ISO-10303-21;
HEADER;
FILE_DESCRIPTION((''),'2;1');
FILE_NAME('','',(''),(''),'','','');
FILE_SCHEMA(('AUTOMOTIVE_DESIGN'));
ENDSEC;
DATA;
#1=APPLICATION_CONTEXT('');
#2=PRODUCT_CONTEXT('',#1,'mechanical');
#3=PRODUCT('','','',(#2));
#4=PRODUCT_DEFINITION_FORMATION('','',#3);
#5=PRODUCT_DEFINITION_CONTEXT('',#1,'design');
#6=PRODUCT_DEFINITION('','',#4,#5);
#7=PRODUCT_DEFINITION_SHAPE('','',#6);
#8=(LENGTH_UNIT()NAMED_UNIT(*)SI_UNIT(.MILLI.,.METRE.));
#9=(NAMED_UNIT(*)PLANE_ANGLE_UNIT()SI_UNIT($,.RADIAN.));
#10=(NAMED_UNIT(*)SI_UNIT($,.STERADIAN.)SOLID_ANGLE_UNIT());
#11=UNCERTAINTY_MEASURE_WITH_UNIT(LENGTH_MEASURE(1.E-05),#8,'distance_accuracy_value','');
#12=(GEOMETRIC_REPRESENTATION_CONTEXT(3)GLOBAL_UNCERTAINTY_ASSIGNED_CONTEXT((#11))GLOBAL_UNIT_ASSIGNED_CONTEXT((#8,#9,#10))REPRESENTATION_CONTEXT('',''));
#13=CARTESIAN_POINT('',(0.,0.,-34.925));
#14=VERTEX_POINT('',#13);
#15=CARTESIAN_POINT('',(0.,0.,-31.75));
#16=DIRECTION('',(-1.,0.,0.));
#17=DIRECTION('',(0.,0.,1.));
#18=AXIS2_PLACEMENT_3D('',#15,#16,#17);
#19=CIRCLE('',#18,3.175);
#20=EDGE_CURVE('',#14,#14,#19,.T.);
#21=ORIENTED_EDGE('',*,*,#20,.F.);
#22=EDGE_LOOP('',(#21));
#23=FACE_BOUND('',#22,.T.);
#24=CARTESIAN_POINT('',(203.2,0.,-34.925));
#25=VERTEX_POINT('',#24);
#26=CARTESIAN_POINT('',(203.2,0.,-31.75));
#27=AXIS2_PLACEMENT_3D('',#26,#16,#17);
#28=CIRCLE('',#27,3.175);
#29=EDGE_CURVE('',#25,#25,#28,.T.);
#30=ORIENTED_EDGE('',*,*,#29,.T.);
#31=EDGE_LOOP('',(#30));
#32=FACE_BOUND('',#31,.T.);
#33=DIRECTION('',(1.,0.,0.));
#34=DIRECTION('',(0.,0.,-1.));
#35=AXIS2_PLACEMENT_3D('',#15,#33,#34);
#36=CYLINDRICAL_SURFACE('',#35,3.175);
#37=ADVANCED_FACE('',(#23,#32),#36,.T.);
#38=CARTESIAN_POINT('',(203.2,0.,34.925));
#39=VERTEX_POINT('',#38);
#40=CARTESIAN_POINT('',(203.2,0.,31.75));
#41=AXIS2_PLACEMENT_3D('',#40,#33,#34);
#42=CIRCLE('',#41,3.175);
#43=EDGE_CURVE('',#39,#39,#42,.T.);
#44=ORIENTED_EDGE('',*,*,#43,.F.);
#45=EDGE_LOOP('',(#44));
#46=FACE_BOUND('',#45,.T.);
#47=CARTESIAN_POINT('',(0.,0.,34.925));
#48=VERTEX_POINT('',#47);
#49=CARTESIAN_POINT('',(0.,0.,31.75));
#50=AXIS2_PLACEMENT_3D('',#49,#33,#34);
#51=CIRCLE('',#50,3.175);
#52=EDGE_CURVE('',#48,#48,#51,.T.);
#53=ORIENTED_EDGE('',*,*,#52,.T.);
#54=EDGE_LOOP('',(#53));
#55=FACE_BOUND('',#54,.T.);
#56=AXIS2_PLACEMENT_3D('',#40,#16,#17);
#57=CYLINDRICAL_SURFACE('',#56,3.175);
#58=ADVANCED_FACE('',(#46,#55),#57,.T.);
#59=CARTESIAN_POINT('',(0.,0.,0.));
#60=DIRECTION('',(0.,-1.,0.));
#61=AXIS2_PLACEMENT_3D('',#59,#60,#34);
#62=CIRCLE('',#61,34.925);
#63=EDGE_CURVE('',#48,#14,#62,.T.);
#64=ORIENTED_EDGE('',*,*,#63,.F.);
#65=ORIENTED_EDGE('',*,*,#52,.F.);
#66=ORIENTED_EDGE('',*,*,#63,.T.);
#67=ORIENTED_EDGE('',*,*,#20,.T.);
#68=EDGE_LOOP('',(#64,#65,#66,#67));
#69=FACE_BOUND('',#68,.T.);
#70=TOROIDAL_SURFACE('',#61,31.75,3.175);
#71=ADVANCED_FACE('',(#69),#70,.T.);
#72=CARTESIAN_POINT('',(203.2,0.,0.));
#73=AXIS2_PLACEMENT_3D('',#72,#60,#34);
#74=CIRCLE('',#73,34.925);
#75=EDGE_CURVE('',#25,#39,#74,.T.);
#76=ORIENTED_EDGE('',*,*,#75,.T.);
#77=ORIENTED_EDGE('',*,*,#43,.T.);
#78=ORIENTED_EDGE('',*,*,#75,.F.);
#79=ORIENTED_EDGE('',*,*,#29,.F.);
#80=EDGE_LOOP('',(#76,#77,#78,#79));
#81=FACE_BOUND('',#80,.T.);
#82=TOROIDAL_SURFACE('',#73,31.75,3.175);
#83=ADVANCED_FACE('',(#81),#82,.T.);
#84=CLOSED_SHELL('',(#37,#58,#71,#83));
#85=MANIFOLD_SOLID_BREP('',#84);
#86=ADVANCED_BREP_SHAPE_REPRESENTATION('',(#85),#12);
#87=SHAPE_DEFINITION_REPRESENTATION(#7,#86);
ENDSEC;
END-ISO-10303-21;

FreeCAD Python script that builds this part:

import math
import FreeCAD as App
import Part
import Sketcher
from FreeCAD import Vector
Q = App.Units.Quantity

doc = App.newDocument("Part")
body = doc.addObject("PartDesign::Body", "Body")

# Sketch on YZ plane
sketch1 = body.newObject("Sketcher::SketchObject", "Sketch")
sketch1.AttachmentSupport = (doc.getObject("YZ_Plane"), [""])
sketch1.MapMode = "FlatFace"
sketch1.addGeometry(Part.Circle(Vector(0, 31.8, 0), Vector(0, 0, 1), 3.2), False)
sketch1.addConstraint([
    Sketcher.Constraint("PointOnObject", 0, 3, -2),
    Sketcher.Constraint("Diameter", 0, Q("0.25 in")),
    Sketcher.Constraint("DistanceY", -1, 1, 0, 3, Q("1.25 in")),
])

# Sketch on XZ plane
sketch2 = body.newObject("Sketcher::SketchObject", "Sketch001")
sketch2.AttachmentSupport = (doc.getObject("XZ_Plane"), [""])
sketch2.MapMode = "FlatFace"
sketch2.addGeometry([
    Part.LineSegment(Vector(0, -32, 0), Vector(203, -32, 0)),
    Part.ArcOfCircle(Part.Circle(Vector(203, 0, 0), Vector(0, 0, 1), 32), math.radians(-90), math.radians(90)),
    Part.LineSegment(Vector(203, 32, 0), Vector(0, 32, 0)),
    Part.ArcOfCircle(Part.Circle(Vector(0, 0, 0), Vector(0, 0, 1), 32), math.radians(90), math.radians(270)),
], False)
sketch2.addConstraint([
    Sketcher.Constraint("Tangent", 0, 2, 1, 1),
    Sketcher.Constraint("Tangent", 1, 2, 2, 1),
    Sketcher.Constraint("Tangent", 2, 2, 3, 1),
    Sketcher.Constraint("Tangent", 3, 2, 0, 1),
    Sketcher.Constraint("Horizontal", 0),
    Sketcher.Constraint("Horizontal", 2),
    Sketcher.Constraint("Coincident", 3, 3, -1, 1),
    Sketcher.Constraint("DistanceX", 0, 1, 0, 2, Q("8 in")),
    Sketcher.Constraint("Radius", 1, Q("1.25 in")),
])
doc.recompute()

additivepipe = body.newObject("PartDesign::AdditivePipe", "AdditivePipe")
additivepipe.Profile = sketch1
additivepipe.Spine = (sketch2, ["Edge1", "Edge2", "Edge3", "Edge4"])

doc.recompute()
